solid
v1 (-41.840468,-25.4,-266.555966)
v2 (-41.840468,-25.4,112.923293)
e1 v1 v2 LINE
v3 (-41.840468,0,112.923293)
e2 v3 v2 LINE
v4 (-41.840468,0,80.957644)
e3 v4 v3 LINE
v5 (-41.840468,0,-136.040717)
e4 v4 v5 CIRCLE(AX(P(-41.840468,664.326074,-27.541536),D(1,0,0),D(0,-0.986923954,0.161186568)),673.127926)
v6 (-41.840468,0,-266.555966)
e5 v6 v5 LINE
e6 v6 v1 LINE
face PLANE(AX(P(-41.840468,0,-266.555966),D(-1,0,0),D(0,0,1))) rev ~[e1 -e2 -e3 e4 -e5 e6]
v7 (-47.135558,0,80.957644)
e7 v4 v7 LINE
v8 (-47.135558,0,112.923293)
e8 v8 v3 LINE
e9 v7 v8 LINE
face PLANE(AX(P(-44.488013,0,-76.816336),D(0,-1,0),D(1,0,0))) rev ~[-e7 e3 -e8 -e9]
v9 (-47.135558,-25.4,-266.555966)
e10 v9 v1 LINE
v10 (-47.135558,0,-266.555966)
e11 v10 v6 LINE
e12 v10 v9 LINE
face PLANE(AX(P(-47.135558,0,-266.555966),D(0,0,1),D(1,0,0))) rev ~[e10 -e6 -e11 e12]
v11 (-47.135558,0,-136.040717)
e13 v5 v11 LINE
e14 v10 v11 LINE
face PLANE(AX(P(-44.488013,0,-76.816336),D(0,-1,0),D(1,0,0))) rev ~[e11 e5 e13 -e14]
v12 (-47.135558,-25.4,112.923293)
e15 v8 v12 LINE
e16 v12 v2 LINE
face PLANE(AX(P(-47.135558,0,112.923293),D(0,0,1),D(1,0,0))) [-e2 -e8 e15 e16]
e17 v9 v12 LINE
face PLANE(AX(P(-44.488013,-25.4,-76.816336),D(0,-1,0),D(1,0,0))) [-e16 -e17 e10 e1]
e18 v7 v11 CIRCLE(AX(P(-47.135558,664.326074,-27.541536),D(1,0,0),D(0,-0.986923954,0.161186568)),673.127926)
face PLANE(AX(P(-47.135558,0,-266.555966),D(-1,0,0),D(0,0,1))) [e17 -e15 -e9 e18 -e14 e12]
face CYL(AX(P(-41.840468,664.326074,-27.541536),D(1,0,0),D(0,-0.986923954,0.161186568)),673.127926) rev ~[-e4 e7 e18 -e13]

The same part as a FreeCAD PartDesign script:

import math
import FreeCAD as App
import Part
import Sketcher
Q = App.Units.Quantity

doc = App.newDocument("Part")
body = doc.addObject("PartDesign::Body", "Body")

sketch1 = body.newObject("Sketcher::SketchObject", "Sketch")
sketch1.AttachmentSupport = (doc.getObject("XZ_Plane"), [""])
sketch1.MapMode = "FlatFace"
sketch1.addGeometry(Part.LineSegment(App.Vector(-47.135558, 112.923293, 0), App.Vector(-47.135558, -266.555966, 0)), False)
sketch1.addGeometry(Part.LineSegment(App.Vector(-47.135558, -266.555966, 0), App.Vector(-41.840468, -266.555966, 0)), False)
sketch1.addGeometry(Part.LineSegment(App.Vector(-41.840468, -266.555966, 0), App.Vector(-41.840468, 112.923293, 0)), False)
sketch1.addGeometry(Part.LineSegment(App.Vector(-41.840468, 112.923293, 0), App.Vector(-47.135558, 112.923293, 0)), False)
sketch1.addConstraint(Sketcher.Constraint("Coincident", 0, 2, 1, 1))
sketch1.addConstraint(Sketcher.Constraint("Coincident", 1, 2, 2, 1))
sketch1.addConstraint(Sketcher.Constraint("Coincident", 2, 2, 3, 1))
sketch1.addConstraint(Sketcher.Constraint("Coincident", 3, 2, 0, 1))
sketch1.addConstraint(Sketcher.Constraint("Vertical", 0))
sketch1.addConstraint(Sketcher.Constraint("Horizontal", 1))
sketch1.addConstraint(Sketcher.Constraint("Vertical", 2))
sketch1.addConstraint(Sketcher.Constraint("Horizontal", 3))
sketch1.addConstraint(Sketcher.Constraint("DistanceX", 1, 1, 1, 2, Q("5.29509 mm")))
sketch1.addConstraint(Sketcher.Constraint("DistanceY", 0, 2, 0, 1, Q("379.479259 mm")))
sketch1.addConstraint(Sketcher.Constraint("DistanceX", 0, 2, -1, 1, Q("47.135558 mm")))
sketch1.addConstraint(Sketcher.Constraint("DistanceY", 0, 2, -1, 1, Q("266.555966 mm")))
pad1 = body.newObject("PartDesign::Pad", "Pad")
pad1.Profile = sketch1
pad1.Length = Q("1 in")

sketch2 = body.newObject("Sketcher::SketchObject", "Sketch001")
sketch2.AttachmentSupport = (doc.getObject("YZ_Plane"), [""])
sketch2.MapMode = "FlatFace"
sketch2.AttachmentOffset = App.Placement(App.Vector(0, 0, -41.840468), App.Rotation())
sketch2.addGeometry(Part.LineSegment(App.Vector(0, -136.040717, 0), App.Vector(0, 80.957644, 0)), False)
sketch2.addGeometry(Part.ArcOfCircle(Part.Circle(App.Vector(664.326074, -27.541536, 0), App.Vector(0, 0, 1), 673.127926), math.radians(170.724224), math.radians(189.275776)), False)
sketch2.addConstraint(Sketcher.Constraint("Coincident", 0, 1, 1, 2))
sketch2.addConstraint(Sketcher.Constraint("Coincident", 1, 1, 0, 2))
sketch2.addConstraint(Sketcher.Constraint("Vertical", 0))
sketch2.addConstraint(Sketcher.Constraint("PointOnObject", 0, 1, -2))
sketch2.addConstraint(Sketcher.Constraint("Radius", 1, Q("673.127926 mm")))
sketch2.addConstraint(Sketcher.Constraint("DistanceY", 0, 1, 0, 2, Q("216.998361 mm")))
sketch2.addConstraint(Sketcher.Constraint("DistanceY", 1, 3, -1, 1, Q("27.541536 mm")))
pocket1 = body.newObject("PartDesign::Pocket", "Pocket")
pocket1.Profile = sketch2
pocket1.Length = Q("1 in")

doc.recompute()
